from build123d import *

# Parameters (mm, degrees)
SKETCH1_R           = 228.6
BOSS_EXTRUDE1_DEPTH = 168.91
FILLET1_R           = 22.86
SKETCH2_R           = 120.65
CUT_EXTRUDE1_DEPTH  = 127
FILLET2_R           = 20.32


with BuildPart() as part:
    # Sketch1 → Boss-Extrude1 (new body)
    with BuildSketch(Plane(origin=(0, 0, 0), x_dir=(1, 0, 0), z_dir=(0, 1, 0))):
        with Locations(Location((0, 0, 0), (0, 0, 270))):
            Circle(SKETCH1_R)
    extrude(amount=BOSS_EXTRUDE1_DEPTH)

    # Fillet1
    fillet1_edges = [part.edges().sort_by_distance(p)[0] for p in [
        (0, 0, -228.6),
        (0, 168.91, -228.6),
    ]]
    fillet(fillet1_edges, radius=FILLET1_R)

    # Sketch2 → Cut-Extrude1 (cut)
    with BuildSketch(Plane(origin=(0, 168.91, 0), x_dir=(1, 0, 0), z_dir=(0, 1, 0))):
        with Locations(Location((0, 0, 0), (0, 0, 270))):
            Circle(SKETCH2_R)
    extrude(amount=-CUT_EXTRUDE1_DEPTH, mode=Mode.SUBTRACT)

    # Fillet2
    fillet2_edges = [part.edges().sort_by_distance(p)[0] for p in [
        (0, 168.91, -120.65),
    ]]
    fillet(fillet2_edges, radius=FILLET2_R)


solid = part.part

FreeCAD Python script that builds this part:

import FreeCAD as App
import Part
import Sketcher
from FreeCAD import Vector
Q = App.Units.Quantity


def edges_at(feature, points):
    """Names of the edges that pass closest to the given points."""
    edges = feature.Shape.Edges
    near = lambda p: min(range(len(edges)), key=lambda i: edges[i].distToShape(Part.Vertex(*p))[0])
    return sorted({f"Edge{near(p) + 1}" for p in points})

doc = App.newDocument("Part")
params = doc.addObject("Spreadsheet::Sheet", "Params")
for row, (alias, value) in enumerate([
    ("sketch1_diameter", "18 in"),
    ("pad1_length", "6.65 in"),
    ("fillet_radius", "0.9 in"),
    ("sketch2_diameter", "9.5 in"),
    ("pocket1_length", "5 in"),
    ("fillet2_radius", "0.8 in"),
], start=1):
    params.set(f"A{row}", alias)
    params.set(f"B{row}", "=" + value)
    params.setAlias(f"B{row}", alias)

body = doc.addObject("PartDesign::Body", "Body")

sketch1 = body.newObject("Sketcher::SketchObject", "Sketch")
sketch1.AttachmentSupport = (doc.getObject("XZ_Plane"), [""])
sketch1.MapMode = "FlatFace"
sketch1.addGeometry(Part.Circle(Vector(0, 0, 0), Vector(0, 0, 1), 229), False)
sketch1.addConstraint([
    Sketcher.Constraint("Coincident", 0, 3, -1, 1),
    Sketcher.Constraint("Diameter", 0, Q("18 in")),
])
sketch1.setExpression("Constraints[1]", "Params.sketch1_diameter")
pad1 = body.newObject("PartDesign::Pad", "Pad")
pad1.Profile = sketch1
pad1.setExpression("Length", "Params.pad1_length")
pad1.Reversed = True
doc.recompute()

fillet = body.newObject("PartDesign::Fillet", "Fillet")
fillet.Base = (pad1, edges_at(pad1, [(0, 0, -228.6), (0, 168.91, -228.6)]))
fillet.setExpression("Radius", "Params.fillet_radius")

sketch2 = body.newObject("Sketcher::SketchObject", "Sketch001")
sketch2.AttachmentSupport = (doc.getObject("XZ_Plane"), [""])
sketch2.MapMode = "FlatFace"
sketch2.AttachmentOffset = App.Placement(Vector(0, 0, -6.65 * 25.4), App.Rotation())
sketch2.addGeometry(Part.Circle(Vector(0, 0, 0), Vector(0, 0, 1), 121), False)
sketch2.addConstraint([
    Sketcher.Constraint("Coincident", 0, 3, -1, 1),
    Sketcher.Constraint("Diameter", 0, Q("9.5 in")),
])
sketch2.setExpression("Constraints[1]", "Params.sketch2_diameter")
pocket1 = body.newObject("PartDesign::Pocket", "Pocket")
pocket1.Profile = sketch2
pocket1.setExpression("Length", "Params.pocket1_length")
pocket1.Reversed = True
doc.recompute()

fillet2 = body.newObject("PartDesign::Fillet", "Fillet001")
fillet2.Base = (pocket1, edges_at(pocket1, [(0, 168.91, -120.65)]))
fillet2.setExpression("Radius", "Params.fillet2_radius")

doc.recompute()
